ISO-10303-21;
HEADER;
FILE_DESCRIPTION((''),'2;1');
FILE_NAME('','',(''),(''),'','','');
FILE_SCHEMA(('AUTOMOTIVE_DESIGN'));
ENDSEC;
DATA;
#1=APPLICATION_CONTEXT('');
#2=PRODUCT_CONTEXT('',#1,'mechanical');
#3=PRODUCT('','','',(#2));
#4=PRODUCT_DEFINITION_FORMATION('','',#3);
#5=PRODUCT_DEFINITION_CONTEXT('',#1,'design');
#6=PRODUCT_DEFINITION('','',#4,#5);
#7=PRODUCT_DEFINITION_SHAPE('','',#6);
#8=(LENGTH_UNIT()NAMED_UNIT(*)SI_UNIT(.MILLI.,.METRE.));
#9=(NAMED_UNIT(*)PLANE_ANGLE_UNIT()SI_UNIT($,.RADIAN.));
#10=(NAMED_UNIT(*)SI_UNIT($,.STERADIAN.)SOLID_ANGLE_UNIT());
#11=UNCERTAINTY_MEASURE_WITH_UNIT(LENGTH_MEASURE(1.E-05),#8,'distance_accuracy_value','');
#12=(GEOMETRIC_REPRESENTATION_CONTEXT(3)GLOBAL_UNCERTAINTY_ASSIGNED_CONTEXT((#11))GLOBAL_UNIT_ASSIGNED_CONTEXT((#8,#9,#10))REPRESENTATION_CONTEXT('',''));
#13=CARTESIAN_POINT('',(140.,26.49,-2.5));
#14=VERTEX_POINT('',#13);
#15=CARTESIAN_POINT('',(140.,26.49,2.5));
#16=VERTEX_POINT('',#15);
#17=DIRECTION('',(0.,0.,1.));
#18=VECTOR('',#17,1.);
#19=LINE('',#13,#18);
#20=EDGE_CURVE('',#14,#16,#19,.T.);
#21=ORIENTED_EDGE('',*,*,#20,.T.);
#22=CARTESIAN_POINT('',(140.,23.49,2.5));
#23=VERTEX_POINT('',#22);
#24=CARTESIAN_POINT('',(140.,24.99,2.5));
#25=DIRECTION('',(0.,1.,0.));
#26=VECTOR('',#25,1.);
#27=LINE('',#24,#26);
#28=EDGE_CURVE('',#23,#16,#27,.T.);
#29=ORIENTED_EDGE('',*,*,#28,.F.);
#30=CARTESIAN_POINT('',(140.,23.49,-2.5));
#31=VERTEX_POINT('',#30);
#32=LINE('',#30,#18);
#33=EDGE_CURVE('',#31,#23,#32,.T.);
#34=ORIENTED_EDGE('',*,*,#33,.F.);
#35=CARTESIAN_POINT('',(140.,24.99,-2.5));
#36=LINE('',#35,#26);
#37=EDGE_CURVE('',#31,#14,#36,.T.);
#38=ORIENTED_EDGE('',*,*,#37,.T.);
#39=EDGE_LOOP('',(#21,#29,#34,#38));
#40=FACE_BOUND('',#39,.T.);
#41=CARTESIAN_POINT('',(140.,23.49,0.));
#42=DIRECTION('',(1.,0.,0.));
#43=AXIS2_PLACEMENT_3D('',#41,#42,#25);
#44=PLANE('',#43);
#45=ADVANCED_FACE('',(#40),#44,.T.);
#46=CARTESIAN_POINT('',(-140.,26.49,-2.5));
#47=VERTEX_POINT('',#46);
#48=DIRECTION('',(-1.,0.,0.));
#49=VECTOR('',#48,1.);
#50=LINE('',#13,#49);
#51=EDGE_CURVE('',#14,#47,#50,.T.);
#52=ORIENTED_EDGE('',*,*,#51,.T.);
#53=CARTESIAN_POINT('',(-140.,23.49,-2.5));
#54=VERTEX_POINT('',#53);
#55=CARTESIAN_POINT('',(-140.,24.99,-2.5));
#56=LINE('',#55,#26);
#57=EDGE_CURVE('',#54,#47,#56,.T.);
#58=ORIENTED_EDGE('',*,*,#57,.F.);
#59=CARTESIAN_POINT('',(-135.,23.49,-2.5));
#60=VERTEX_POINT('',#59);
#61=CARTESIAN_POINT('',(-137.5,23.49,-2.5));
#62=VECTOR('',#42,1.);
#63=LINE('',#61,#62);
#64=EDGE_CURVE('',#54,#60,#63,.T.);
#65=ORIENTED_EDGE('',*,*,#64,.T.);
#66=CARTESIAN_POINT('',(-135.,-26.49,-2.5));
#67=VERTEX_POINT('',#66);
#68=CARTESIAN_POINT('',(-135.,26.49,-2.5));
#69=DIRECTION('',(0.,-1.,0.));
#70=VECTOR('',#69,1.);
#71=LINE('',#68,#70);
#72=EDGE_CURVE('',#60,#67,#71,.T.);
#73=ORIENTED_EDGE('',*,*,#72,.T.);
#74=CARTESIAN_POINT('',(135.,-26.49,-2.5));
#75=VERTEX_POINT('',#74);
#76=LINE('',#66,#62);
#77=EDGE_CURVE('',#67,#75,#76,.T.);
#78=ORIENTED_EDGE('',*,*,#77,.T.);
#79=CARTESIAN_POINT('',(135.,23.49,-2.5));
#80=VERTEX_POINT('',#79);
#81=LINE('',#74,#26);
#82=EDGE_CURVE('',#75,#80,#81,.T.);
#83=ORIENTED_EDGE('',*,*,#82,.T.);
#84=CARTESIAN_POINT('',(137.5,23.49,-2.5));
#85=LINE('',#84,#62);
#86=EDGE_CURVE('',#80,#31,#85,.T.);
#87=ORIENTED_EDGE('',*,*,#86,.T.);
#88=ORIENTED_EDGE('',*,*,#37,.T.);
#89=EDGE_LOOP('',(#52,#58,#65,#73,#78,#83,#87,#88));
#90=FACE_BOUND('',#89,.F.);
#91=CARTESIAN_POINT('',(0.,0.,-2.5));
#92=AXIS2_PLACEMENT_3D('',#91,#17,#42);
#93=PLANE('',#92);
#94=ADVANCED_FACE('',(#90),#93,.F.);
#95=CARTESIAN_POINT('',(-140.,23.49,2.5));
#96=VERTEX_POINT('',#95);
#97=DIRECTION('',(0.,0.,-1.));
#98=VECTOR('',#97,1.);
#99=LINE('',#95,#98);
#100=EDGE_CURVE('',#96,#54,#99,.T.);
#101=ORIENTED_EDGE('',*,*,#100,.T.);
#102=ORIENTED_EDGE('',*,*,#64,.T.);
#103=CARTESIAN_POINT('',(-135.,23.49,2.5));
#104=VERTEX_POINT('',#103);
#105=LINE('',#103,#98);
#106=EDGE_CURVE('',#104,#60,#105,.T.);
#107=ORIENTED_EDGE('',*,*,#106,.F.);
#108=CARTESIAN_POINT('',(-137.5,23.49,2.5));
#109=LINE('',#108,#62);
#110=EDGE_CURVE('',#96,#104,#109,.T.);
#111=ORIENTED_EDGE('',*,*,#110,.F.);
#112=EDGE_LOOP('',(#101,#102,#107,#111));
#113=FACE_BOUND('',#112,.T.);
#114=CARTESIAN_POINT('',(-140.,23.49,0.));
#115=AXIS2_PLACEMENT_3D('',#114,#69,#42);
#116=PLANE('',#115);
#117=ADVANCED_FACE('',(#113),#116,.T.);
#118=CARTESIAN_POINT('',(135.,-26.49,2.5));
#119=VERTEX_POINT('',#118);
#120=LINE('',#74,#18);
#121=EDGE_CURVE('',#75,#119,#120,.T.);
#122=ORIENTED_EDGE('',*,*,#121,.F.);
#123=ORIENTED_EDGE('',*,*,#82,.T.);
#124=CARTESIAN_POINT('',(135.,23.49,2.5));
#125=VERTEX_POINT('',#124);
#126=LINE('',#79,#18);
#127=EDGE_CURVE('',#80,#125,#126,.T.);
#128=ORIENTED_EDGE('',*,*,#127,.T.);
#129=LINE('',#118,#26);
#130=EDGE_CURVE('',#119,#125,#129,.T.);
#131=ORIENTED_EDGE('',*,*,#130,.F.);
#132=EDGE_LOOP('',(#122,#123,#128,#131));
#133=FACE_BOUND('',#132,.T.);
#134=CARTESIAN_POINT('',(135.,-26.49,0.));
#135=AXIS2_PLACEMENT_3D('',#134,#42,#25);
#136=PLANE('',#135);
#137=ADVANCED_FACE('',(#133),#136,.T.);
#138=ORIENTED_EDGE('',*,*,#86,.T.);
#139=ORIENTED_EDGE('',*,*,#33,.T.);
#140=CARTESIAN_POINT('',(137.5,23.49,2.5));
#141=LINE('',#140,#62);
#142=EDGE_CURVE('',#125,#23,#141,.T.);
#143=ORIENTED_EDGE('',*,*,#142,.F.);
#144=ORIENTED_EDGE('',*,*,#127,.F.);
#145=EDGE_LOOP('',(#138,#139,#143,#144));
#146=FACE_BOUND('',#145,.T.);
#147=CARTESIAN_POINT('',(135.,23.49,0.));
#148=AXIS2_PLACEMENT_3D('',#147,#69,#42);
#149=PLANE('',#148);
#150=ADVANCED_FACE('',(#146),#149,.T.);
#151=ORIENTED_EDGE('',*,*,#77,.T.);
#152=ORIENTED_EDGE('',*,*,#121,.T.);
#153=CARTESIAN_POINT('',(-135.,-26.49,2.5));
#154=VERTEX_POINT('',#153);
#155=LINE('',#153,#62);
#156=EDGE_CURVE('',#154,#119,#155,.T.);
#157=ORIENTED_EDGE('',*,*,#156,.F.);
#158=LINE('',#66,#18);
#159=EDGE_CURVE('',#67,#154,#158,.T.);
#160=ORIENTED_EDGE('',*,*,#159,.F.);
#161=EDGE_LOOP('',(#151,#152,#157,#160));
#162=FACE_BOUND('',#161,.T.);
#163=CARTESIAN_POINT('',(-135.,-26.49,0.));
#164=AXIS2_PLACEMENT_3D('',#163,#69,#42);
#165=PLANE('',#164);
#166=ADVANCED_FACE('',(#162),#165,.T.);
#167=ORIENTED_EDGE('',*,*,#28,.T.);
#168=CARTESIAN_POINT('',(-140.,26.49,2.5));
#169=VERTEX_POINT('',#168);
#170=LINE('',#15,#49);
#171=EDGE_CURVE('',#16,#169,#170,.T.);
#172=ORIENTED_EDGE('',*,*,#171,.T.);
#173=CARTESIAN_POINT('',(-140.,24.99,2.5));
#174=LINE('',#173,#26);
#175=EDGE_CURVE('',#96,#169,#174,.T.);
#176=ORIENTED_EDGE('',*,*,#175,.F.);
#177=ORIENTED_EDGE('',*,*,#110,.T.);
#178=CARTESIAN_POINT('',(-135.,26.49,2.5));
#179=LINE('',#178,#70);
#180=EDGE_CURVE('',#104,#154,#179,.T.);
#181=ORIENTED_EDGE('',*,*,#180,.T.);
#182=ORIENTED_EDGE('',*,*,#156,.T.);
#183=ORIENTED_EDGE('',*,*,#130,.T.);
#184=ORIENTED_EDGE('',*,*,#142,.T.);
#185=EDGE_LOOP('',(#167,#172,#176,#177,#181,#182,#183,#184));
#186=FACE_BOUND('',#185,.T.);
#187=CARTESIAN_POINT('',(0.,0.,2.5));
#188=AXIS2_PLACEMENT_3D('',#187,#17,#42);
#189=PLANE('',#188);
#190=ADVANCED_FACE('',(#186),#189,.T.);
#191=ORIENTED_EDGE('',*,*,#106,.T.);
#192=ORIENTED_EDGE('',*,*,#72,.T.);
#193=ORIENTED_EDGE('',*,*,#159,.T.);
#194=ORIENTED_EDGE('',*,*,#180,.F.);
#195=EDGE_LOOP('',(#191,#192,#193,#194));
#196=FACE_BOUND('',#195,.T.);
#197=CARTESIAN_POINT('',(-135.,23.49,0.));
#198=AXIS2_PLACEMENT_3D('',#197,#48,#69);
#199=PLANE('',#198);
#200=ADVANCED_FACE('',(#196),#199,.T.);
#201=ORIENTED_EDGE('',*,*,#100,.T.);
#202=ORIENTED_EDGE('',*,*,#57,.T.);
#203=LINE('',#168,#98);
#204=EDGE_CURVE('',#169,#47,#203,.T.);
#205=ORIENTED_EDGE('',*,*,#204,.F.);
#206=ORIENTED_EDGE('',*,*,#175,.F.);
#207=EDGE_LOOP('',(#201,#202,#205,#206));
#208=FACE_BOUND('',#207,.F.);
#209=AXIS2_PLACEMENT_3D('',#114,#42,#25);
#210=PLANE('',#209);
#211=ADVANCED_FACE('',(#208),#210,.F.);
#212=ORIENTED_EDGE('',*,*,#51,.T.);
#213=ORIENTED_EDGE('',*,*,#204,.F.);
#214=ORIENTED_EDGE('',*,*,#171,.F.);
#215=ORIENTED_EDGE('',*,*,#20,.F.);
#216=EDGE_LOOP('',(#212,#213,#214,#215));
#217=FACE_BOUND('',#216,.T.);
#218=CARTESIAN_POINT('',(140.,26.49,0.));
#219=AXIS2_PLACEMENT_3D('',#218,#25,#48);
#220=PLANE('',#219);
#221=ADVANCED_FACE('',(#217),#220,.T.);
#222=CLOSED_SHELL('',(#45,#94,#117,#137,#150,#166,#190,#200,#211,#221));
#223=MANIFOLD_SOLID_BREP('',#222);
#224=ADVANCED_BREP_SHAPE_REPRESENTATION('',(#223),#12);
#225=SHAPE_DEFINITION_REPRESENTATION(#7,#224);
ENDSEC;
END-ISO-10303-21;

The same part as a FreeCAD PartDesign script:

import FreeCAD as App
import Part
import Sketcher

V = App.Vector

doc = App.newDocument("Part")
body = doc.addObject("PartDesign::Body", "Body")

# Sketch on XY plane
sketch1 = body.newObject("Sketcher::SketchObject", "Sketch")
sketch1.AttachmentSupport = (doc.getObject("XY_Plane"), [""])
sketch1.MapMode = "FlatFace"
sketch1.addGeometry([
    Part.LineSegment(V(-135, 23.5, 0), V(-135, -26.5, 0)),  # 0
    Part.LineSegment(V(-135, -26.5, 0), V(135, -26.5, 0)),  # 1
    Part.LineSegment(V(135, -26.5, 0), V(135, 23.5, 0)),  # 2
    Part.LineSegment(V(135, 23.5, 0), V(140, 23.5, 0)),  # 3
    Part.LineSegment(V(140, 23.5, 0), V(140, 26.5, 0)),  # 4
    Part.LineSegment(V(140, 26.5, 0), V(-140, 26.5, 0)),  # 5
    Part.LineSegment(V(-140, 26.5, 0), V(-140, 23.5, 0)),  # 6
    Part.LineSegment(V(-140, 23.5, 0), V(-135, 23.5, 0)),  # 7
], False)
sketch1.addConstraint([
    Sketcher.Constraint("Coincident", 0, 2, 1, 1),
    Sketcher.Constraint("Coincident", 1, 2, 2, 1),
    Sketcher.Constraint("Coincident", 2, 2, 3, 1),
    Sketcher.Constraint("Coincident", 3, 2, 4, 1),
    Sketcher.Constraint("Coincident", 4, 2, 5, 1),
    Sketcher.Constraint("Coincident", 5, 2, 6, 1),
    Sketcher.Constraint("Coincident", 6, 2, 7, 1),
    Sketcher.Constraint("Coincident", 7, 2, 0, 1),
    Sketcher.Constraint("Vertical", 0),
    Sketcher.Constraint("Horizontal", 1),
    Sketcher.Constraint("Vertical", 2),
    Sketcher.Constraint("Horizontal", 3),
    Sketcher.Constraint("Vertical", 4),
    Sketcher.Constraint("Horizontal", 5),
    Sketcher.Constraint("Vertical", 6),
    Sketcher.Constraint("Horizontal", 7),
    Sketcher.Constraint("Symmetric", 3, 2, 6, 2, -2),
    Sketcher.Constraint("Equal", 3, 7),
    Sketcher.Constraint("DistanceX", 1, 1, 1, 2, 270.0),
    Sketcher.Constraint("DistanceX", 3, 1, 3, 2, 5.0),
    Sketcher.Constraint("DistanceY", 4, 1, 4, 2, 3.0),
    Sketcher.Constraint("DistanceY", 0, 2, 0, 1, 49.98),
    Sketcher.Constraint("DistanceY", 0, 2, -1, 1, 26.49),
])
pad1 = body.newObject("PartDesign::Pad", "Pad")
pad1.Profile = sketch1
pad1.Length = 5
pad1.Midplane = True

doc.recompute()
